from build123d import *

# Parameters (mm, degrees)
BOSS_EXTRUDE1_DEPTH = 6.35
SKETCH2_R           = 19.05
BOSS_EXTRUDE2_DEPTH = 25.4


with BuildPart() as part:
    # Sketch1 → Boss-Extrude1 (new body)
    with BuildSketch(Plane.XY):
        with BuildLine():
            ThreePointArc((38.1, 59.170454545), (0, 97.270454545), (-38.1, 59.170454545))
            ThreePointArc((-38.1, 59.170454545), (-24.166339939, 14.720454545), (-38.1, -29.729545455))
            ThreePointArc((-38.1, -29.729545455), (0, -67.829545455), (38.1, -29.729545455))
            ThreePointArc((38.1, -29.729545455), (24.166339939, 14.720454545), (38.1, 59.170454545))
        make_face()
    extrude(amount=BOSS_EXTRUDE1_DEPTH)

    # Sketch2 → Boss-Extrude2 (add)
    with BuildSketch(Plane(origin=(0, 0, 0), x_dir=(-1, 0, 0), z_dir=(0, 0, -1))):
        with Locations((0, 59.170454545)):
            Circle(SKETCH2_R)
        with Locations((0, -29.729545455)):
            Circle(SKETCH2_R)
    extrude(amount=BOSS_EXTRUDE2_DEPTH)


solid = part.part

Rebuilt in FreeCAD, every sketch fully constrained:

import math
import FreeCAD as App
import Part
import Sketcher
from FreeCAD import Vector
Q = App.Units.Quantity

doc = App.newDocument("Part")
params = doc.addObject("Spreadsheet::Sheet", "Params")
for row, (alias, value) in enumerate([
    ("sketch1_radius", "1.5 in"),
    ("pad1_length", "0.25 in"),
    ("sketch2_diameter", "1.5 in"),
    ("pad2_length", "1 in"),
], start=1):
    params.set(f"A{row}", alias)
    params.set(f"B{row}", "=" + value)
    params.setAlias(f"B{row}", alias)

body = doc.addObject("PartDesign::Body", "Body")

# Sketch on XY plane
sketch1 = body.newObject("Sketcher::SketchObject", "Sketch")
sketch1.AttachmentSupport = (doc.getObject("XY_Plane"), [""])
sketch1.MapMode = "FlatFace"
sketch1.addGeometry(Part.ArcOfCircle(Part.Circle(Vector(0, 59, 0), Vector(0, 0, 1), 38), math.radians(0), math.radians(180)), False)
sketch1.addGeometry(Part.ArcOfCircle(Part.Circle(Vector(-102, 15, 0), Vector(0, 0, 1), 78), math.radians(-35), math.radians(35)), False)
sketch1.addGeometry(Part.ArcOfCircle(Part.Circle(Vector(0, -30, 0), Vector(0, 0, 1), 38), math.radians(180), math.radians(360)), False)
sketch1.addGeometry(Part.ArcOfCircle(Part.Circle(Vector(102, 15, 0), Vector(0, 0, 1), 78), math.radians(145), math.radians(215)), False)
sketch1.addConstraint(Sketcher.Constraint("Coincident", 0, 2, 1, 2))
sketch1.addConstraint(Sketcher.Constraint("Coincident", 1, 1, 2, 1))
sketch1.addConstraint(Sketcher.Constraint("Coincident", 2, 2, 3, 2))
sketch1.addConstraint(Sketcher.Constraint("Coincident", 3, 1, 0, 1))
sketch1.addConstraint(Sketcher.Constraint("Equal", 0, 2))
sketch1.addConstraint(Sketcher.Constraint("Equal", 1, 3))
sketch1.addConstraint(Sketcher.Constraint("Symmetric", 1, 3, 3, 3, -2))
sketch1.addConstraint(Sketcher.Constraint("PointOnObject", 0, 3, -2))
sketch1.addConstraint(Sketcher.Constraint("PointOnObject", 2, 3, -2))
sketch1.addConstraint(Sketcher.Constraint("Horizontal", 2, 3, 1, 1))
sketch1.addConstraint(Sketcher.Constraint("Radius", 0, Q("1.5 in")))
sketch1.addConstraint(Sketcher.Constraint("DistanceY", 2, 3, 0, 3, Q("3.5 in")))
sketch1.addConstraint(Sketcher.Constraint("DistanceY", 2, 3, 0, 2, Q("3.5 in")))
sketch1.addConstraint(Sketcher.Constraint("Radius", 1, Q("77.867171 mm")))
sketch1.addConstraint(Sketcher.Constraint("DistanceY", -1, 1, 0, 3, Q("59.170455 mm")))
sketch1.setExpression("Constraints[10]", "Params.sketch1_radius")
pad1 = body.newObject("PartDesign::Pad", "Pad")
pad1.Profile = sketch1
pad1.setExpression("Length", "Params.pad1_length")

# Sketch on XY plane
sketch2 = body.newObject("Sketcher::SketchObject", "Sketch001")
sketch2.AttachmentSupport = (doc.getObject("XY_Plane"), [""])
sketch2.MapMode = "FlatFace"
sketch2.addGeometry(Part.Circle(Vector(0, 59, 0), Vector(0, 0, 1), 19), False)
sketch2.addGeometry(Part.Circle(Vector(0, -30, 0), Vector(0, 0, 1), 19), False)
sketch2.addConstraint(Sketcher.Constraint("Equal", 0, 1))
sketch2.addConstraint(Sketcher.Constraint("PointOnObject", 0, 3, -2))
sketch2.addConstraint(Sketcher.Constraint("PointOnObject", 1, 3, -2))
sketch2.addConstraint(Sketcher.Constraint("Diameter", 0, Q("1.5 in")))
sketch2.addConstraint(Sketcher.Constraint("DistanceY", 1, 3, 0, 3, Q("3.5 in")))
sketch2.addConstraint(Sketcher.Constraint("DistanceY", -1, 1, 0, 3, Q("59.170455 mm")))
sketch2.setExpression("Constraints[3]", "Params.sketch2_diameter")
pad2 = body.newObject("PartDesign::Pad", "Pad001")
pad2.Profile = sketch2
pad2.setExpression("Length", "Params.pad2_length")
pad2.Reversed = True

doc.recompute()
